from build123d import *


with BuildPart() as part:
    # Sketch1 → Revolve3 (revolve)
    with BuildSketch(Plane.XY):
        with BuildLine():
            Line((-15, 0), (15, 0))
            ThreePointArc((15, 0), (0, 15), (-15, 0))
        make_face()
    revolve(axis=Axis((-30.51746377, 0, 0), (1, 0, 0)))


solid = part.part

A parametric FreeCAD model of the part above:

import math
import FreeCAD as App
import Part
import Sketcher

V = App.Vector
Q = App.Units.Quantity

doc = App.newDocument("Part")
body = doc.addObject("PartDesign::Body", "Body")

# Sketch on XY plane
sketch1 = body.newObject("Sketcher::SketchObject", "Sketch")
sketch1.AttachmentSupport = (doc.getObject("XY_Plane"), [""])
sketch1.MapMode = "FlatFace"
sketch1.addGeometry([
    Part.LineSegment(V(-15, 0, 0), V(15, 0, 0)),
    Part.ArcOfCircle(Part.Circle(V(0, 0, 0), V(0, 0, 1), 15), math.radians(0), math.radians(180)),
], False)
sketch1.addConstraint([
    Sketcher.Constraint("Coincident", 0, 1, 1, 2),
    Sketcher.Constraint("Coincident", 1, 1, 0, 2),
    Sketcher.Constraint("Horizontal", 0),
    Sketcher.Constraint("Coincident", 1, 3, -1, 1),
    Sketcher.Constraint("PointOnObject", 0, 1, -1),
    Sketcher.Constraint("Radius", 1, Q("15 mm")),
])
revolution = body.newObject("PartDesign::Revolution", "Revolution")
revolution.Profile = sketch1
revolution.ReferenceAxis = (sketch1, ["H_Axis"])
revolution.Angle = 360

doc.recompute()
